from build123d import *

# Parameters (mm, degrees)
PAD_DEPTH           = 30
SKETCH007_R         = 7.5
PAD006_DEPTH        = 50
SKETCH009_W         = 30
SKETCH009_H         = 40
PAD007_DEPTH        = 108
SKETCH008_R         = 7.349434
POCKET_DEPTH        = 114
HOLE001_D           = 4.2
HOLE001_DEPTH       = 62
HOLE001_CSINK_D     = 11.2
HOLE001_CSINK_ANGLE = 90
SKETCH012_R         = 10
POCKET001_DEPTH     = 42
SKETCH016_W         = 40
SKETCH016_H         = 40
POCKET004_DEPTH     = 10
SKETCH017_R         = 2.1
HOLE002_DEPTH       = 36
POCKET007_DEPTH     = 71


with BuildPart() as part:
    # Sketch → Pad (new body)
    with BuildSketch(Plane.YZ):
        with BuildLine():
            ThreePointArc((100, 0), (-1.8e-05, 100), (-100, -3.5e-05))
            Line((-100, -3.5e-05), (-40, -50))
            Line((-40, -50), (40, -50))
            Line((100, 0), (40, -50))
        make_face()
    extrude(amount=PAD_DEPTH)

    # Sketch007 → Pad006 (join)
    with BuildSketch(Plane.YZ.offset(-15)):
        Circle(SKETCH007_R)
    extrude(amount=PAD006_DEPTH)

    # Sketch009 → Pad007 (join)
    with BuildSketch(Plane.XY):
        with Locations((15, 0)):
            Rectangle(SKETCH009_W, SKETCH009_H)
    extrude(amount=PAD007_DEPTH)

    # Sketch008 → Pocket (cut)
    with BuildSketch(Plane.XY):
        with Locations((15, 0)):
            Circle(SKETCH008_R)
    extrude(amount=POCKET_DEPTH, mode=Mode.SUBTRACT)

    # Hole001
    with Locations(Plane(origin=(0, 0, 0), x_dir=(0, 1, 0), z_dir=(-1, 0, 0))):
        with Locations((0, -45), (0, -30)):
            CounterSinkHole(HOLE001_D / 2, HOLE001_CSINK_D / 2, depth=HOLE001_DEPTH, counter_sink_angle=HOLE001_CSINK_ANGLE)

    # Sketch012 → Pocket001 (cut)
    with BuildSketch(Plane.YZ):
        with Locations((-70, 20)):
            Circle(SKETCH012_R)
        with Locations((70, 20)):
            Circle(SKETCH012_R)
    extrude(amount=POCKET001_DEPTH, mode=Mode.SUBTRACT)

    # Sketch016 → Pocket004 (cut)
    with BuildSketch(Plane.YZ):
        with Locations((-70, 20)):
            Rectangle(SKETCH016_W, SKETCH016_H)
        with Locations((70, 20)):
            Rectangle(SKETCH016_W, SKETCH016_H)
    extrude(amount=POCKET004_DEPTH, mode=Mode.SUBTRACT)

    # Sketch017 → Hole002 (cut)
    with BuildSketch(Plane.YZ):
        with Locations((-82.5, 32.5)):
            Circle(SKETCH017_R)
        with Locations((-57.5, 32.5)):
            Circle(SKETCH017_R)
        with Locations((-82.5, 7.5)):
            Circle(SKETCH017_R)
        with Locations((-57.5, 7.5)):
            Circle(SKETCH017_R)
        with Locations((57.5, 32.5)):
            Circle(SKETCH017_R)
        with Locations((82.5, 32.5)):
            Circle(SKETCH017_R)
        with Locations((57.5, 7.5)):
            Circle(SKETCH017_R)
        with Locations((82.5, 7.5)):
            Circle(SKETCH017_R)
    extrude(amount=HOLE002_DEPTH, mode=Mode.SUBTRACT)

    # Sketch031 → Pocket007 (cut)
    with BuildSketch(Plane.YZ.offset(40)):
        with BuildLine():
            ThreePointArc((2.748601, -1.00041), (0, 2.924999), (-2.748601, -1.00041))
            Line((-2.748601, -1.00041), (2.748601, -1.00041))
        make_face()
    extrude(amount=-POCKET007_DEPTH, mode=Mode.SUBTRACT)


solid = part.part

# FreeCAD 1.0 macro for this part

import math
import FreeCAD as App
import Part
import Sketcher

doc = App.newDocument("Part")
body = doc.addObject("PartDesign::Body", "Body")

sketch1 = body.newObject("Sketcher::SketchObject", "Sketch")
sketch1.AttachmentSupport = (doc.getObject("YZ_Plane"), [""])
sketch1.MapMode = "FlatFace"
sketch1.addGeometry(Part.ArcOfCircle(Part.Circle(App.Vector(0, 0, 0), App.Vector(0, 0, 1), 100), math.radians(0), math.radians(180.00002)), False)
sketch1.addGeometry(Part.LineSegment(App.Vector(-100, -0.000035, 0), App.Vector(-40, -50, 0)), False)
sketch1.addGeometry(Part.LineSegment(App.Vector(-40, -50, 0), App.Vector(40, -50, 0)), False)
sketch1.addGeometry(Part.LineSegment(App.Vector(40, -50, 0), App.Vector(100, 0, 0)), False)
sketch1.addConstraint(Sketcher.Constraint("Coincident", 0, 2, 1, 1))
sketch1.addConstraint(Sketcher.Constraint("Coincident", 1, 2, 2, 1))
sketch1.addConstraint(Sketcher.Constraint("Coincident", 2, 2, 3, 1))
sketch1.addConstraint(Sketcher.Constraint("Coincident", 3, 2, 0, 1))
sketch1.addConstraint(Sketcher.Constraint("Horizontal", 2))
sketch1.addConstraint(Sketcher.Constraint("Coincident", 0, 3, -1, 1))
sketch1.addConstraint(Sketcher.Constraint("PointOnObject", 3, 2, -1))
sketch1.addConstraint(Sketcher.Constraint("Radius", 0, 100.0))
sketch1.addConstraint(Sketcher.Constraint("DistanceX", 2, 1, 2, 2, 80.0))
sketch1.addConstraint(Sketcher.Constraint("DistanceX", 1, 2, -1, 1, 40.0))
sketch1.addConstraint(Sketcher.Constraint("DistanceY", 1, 2, -1, 1, 50.0))
sketch1.addConstraint(Sketcher.Constraint("Distance", 1, 78.102474))
pad1 = body.newObject("PartDesign::Pad", "Pad")
pad1.Profile = sketch1
pad1.Length = 30

sketch2 = body.newObject("Sketcher::SketchObject", "Sketch001")
sketch2.AttachmentSupport = (doc.getObject("YZ_Plane"), [""])
sketch2.MapMode = "FlatFace"
sketch2.AttachmentOffset = App.Placement(App.Vector(0, 0, -15), App.Rotation())
sketch2.addGeometry(Part.Circle(App.Vector(0, 0, 0), App.Vector(0, 0, 1), 7.5), False)
sketch2.addConstraint(Sketcher.Constraint("Coincident", 0, 3, -1, 1))
sketch2.addConstraint(Sketcher.Constraint("Diameter", 0, 15.0))
pad2 = body.newObject("PartDesign::Pad", "Pad001")
pad2.Profile = sketch2
pad2.Length = 50

sketch3 = body.newObject("Sketcher::SketchObject", "Sketch002")
sketch3.AttachmentSupport = (doc.getObject("XY_Plane"), [""])
sketch3.MapMode = "FlatFace"
sketch3.addGeometry(Part.LineSegment(App.Vector(0, 20, 0), App.Vector(0, -20, 0)), False)
sketch3.addGeometry(Part.LineSegment(App.Vector(0, -20, 0), App.Vector(30, -20, 0)), False)
sketch3.addGeometry(Part.LineSegment(App.Vector(30, -20, 0), App.Vector(30, 20, 0)), False)
sketch3.addGeometry(Part.LineSegment(App.Vector(30, 20, 0), App.Vector(0, 20, 0)), False)
sketch3.addConstraint(Sketcher.Constraint("Coincident", 0, 2, 1, 1))
sketch3.addConstraint(Sketcher.Constraint("Coincident", 1, 2, 2, 1))
sketch3.addConstraint(Sketcher.Constraint("Coincident", 2, 2, 3, 1))
sketch3.addConstraint(Sketcher.Constraint("Coincident", 3, 2, 0, 1))
sketch3.addConstraint(Sketcher.Constraint("Vertical", 0))
sketch3.addConstraint(Sketcher.Constraint("Horizontal", 1))
sketch3.addConstraint(Sketcher.Constraint("Vertical", 2))
sketch3.addConstraint(Sketcher.Constraint("Horizontal", 3))
sketch3.addConstraint(Sketcher.Constraint("Symmetric", 0, 2, 3, 2, -1, 1))
sketch3.addConstraint(Sketcher.Constraint("DistanceX", 1, 1, 1, 2, 30.0))
sketch3.addConstraint(Sketcher.Constraint("DistanceY", 0, 2, 0, 1, 40.0))
pad3 = body.newObject("PartDesign::Pad", "Pad002")
pad3.Profile = sketch3
pad3.Length = 108

sketch4 = body.newObject("Sketcher::SketchObject", "Sketch003")
sketch4.AttachmentSupport = (doc.getObject("XY_Plane"), [""])
sketch4.MapMode = "FlatFace"
sketch4.addGeometry(Part.Circle(App.Vector(15, 0, 0), App.Vector(0, 0, 1), 7.349434), False)
sketch4.addConstraint(Sketcher.Constraint("PointOnObject", 0, 3, -1))
sketch4.addConstraint(Sketcher.Constraint("DistanceX", -1, 1, 0, 3, 15.0))
sketch4.addConstraint(Sketcher.Constraint("Diameter", 0, 14.698868))
pocket1 = body.newObject("PartDesign::Pocket", "Pocket")
pocket1.Profile = sketch4
pocket1.Length = 114
pocket1.Reversed = True

sketch5 = body.newObject("Sketcher::SketchObject", "Sketch004")
sketch5.AttachmentSupport = (doc.getObject("YZ_Plane"), [""])
sketch5.MapMode = "FlatFace"
sketch5.addGeometry(Part.Circle(App.Vector(0, 45, 0), App.Vector(0, 0, 1), 2.1), False)
sketch5.addGeometry(Part.Circle(App.Vector(0, 30, 0), App.Vector(0, 0, 1), 2.1), False)
sketch5.addConstraint(Sketcher.Constraint("Equal", 0, 1))
sketch5.addConstraint(Sketcher.Constraint("PointOnObject", 0, 3, -2))
sketch5.addConstraint(Sketcher.Constraint("PointOnObject", 1, 3, -2))
sketch5.addConstraint(Sketcher.Constraint("Diameter", 0, 4.2))
sketch5.addConstraint(Sketcher.Constraint("DistanceY", -1, 1, 0, 3, 45.0))
sketch5.addConstraint(Sketcher.Constraint("DistanceY", -1, 1, 1, 3, 30.0))
doc.recompute()
hole = body.newObject("PartDesign::Hole", "Hole")
hole.Profile = sketch5
hole.ThreadType = "None"
hole.Diameter = 4.2
hole.DepthType = "Dimension"
hole.Depth = 62
hole.DrillPoint = "Flat"
hole.HoleCutType = "Countersink"
hole.HoleCutDiameter = 11.2
hole.HoleCutCountersinkAngle = 90
hole.Reversed = True

sketch6 = body.newObject("Sketcher::SketchObject", "Sketch005")
sketch6.AttachmentSupport = (doc.getObject("YZ_Plane"), [""])
sketch6.MapMode = "FlatFace"
sketch6.addGeometry(Part.Circle(App.Vector(-70, 20, 0), App.Vector(0, 0, 1), 10), False)
sketch6.addGeometry(Part.Circle(App.Vector(70, 20, 0), App.Vector(0, 0, 1), 10), False)
sketch6.addConstraint(Sketcher.Constraint("Equal", 0, 1))
sketch6.addConstraint(Sketcher.Constraint("Symmetric", 0, 3, 1, 3, -2))
sketch6.addConstraint(Sketcher.Constraint("Diameter", 0, 20.0))
sketch6.addConstraint(Sketcher.Constraint("DistanceX", 0, 3, -1, 1, 70.0))
sketch6.addConstraint(Sketcher.Constraint("DistanceY", -1, 1, 0, 3, 20.0))
pocket2 = body.newObject("PartDesign::Pocket", "Pocket001")
pocket2.Profile = sketch6
pocket2.Length = 42
pocket2.Reversed = True

sketch7 = body.newObject("Sketcher::SketchObject", "Sketch006")
sketch7.AttachmentSupport = (doc.getObject("YZ_Plane"), [""])
sketch7.MapMode = "FlatFace"
sketch7.addGeometry(Part.LineSegment(App.Vector(-90, 40, 0), App.Vector(-90, 0, 0)), False)
sketch7.addGeometry(Part.LineSegment(App.Vector(-90, 0, 0), App.Vector(-50, 0, 0)), False)
sketch7.addGeometry(Part.LineSegment(App.Vector(-50, 0, 0), App.Vector(-50, 40, 0)), False)
sketch7.addGeometry(Part.LineSegment(App.Vector(-50, 40, 0), App.Vector(-90, 40, 0)), False)
sketch7.addGeometry(Part.LineSegment(App.Vector(50, 40, 0), App.Vector(50, 0, 0)), False)
sketch7.addGeometry(Part.LineSegment(App.Vector(50, 0, 0), App.Vector(90, 0, 0)), False)
sketch7.addGeometry(Part.LineSegment(App.Vector(90, 0, 0), App.Vector(90, 40, 0)), False)
sketch7.addGeometry(Part.LineSegment(App.Vector(90, 40, 0), App.Vector(50, 40, 0)), False)
sketch7.addConstraint(Sketcher.Constraint("Coincident", 0, 2, 1, 1))
sketch7.addConstraint(Sketcher.Constraint("Coincident", 1, 2, 2, 1))
sketch7.addConstraint(Sketcher.Constraint("Coincident", 2, 2, 3, 1))
sketch7.addConstraint(Sketcher.Constraint("Coincident", 3, 2, 0, 1))
sketch7.addConstraint(Sketcher.Constraint("Coincident", 4, 2, 5, 1))
sketch7.addConstraint(Sketcher.Constraint("Coincident", 5, 2, 6, 1))
sketch7.addConstraint(Sketcher.Constraint("Coincident", 6, 2, 7, 1))
sketch7.addConstraint(Sketcher.Constraint("Coincident", 7, 2, 4, 1))
sketch7.addConstraint(Sketcher.Constraint("Vertical", 0))
sketch7.addConstraint(Sketcher.Constraint("Horizontal", 1))
sketch7.addConstraint(Sketcher.Constraint("Vertical", 2))
sketch7.addConstraint(Sketcher.Constraint("Horizontal", 3))
sketch7.addConstraint(Sketcher.Constraint("Vertical", 4))
sketch7.addConstraint(Sketcher.Constraint("Horizontal", 5))
sketch7.addConstraint(Sketcher.Constraint("Vertical", 6))
sketch7.addConstraint(Sketcher.Constraint("Horizontal", 7))
sketch7.addConstraint(Sketcher.Constraint("Symmetric", 1, 2, 4, 2, -1, 1))
sketch7.addConstraint(Sketcher.Constraint("Symmetric", 0, 2, 5, 2, -2))
sketch7.addConstraint(Sketcher.Constraint("Horizontal", 3, 2, 6, 2))
sketch7.addConstraint(Sketcher.Constraint("Equal", 7, 0))
sketch7.addConstraint(Sketcher.Constraint("DistanceX", 1, 1, 1, 2, 40.0))
sketch7.addConstraint(Sketcher.Constraint("DistanceX", 0, 2, -1, 1, 90.0))
pocket3 = body.newObject("PartDesign::Pocket", "Pocket002")
pocket3.Profile = sketch7
pocket3.Length = 10
pocket3.Reversed = True

sketch8 = body.newObject("Sketcher::SketchObject", "Sketch007")
sketch8.AttachmentSupport = (doc.getObject("YZ_Plane"), [""])
sketch8.MapMode = "FlatFace"
sketch8.addGeometry(Part.Circle(App.Vector(-82.5, 32.5, 0), App.Vector(0, 0, 1), 2.1), False)
sketch8.addGeometry(Part.Circle(App.Vector(-57.5, 32.5, 0), App.Vector(0, 0, 1), 2.1), False)
sketch8.addGeometry(Part.Circle(App.Vector(-82.5, 7.5, 0), App.Vector(0, 0, 1), 2.1), False)
sketch8.addGeometry(Part.Circle(App.Vector(-57.5, 7.5, 0), App.Vector(0, 0, 1), 2.1), False)
sketch8.addGeometry(Part.Circle(App.Vector(57.5, 32.5, 0), App.Vector(0, 0, 1), 2.1), False)
sketch8.addGeometry(Part.Circle(App.Vector(82.5, 32.5, 0), App.Vector(0, 0, 1), 2.1), False)
sketch8.addGeometry(Part.Circle(App.Vector(57.5, 7.5, 0), App.Vector(0, 0, 1), 2.1), False)
sketch8.addGeometry(Part.Circle(App.Vector(82.5, 7.5, 0), App.Vector(0, 0, 1), 2.1), False)
sketch8.addConstraint(Sketcher.Constraint("Equal", 0, 1))
sketch8.addConstraint(Sketcher.Constraint("Equal", 1, 2))
sketch8.addConstraint(Sketcher.Constraint("Equal", 2, 3))
sketch8.addConstraint(Sketcher.Constraint("Equal", 3, 4))
sketch8.addConstraint(Sketcher.Constraint("Equal", 4, 5))
sketch8.addConstraint(Sketcher.Constraint("Equal", 5, 6))
sketch8.addConstraint(Sketcher.Constraint("Equal", 6, 7))
sketch8.addConstraint(Sketcher.Constraint("Symmetric", 1, 3, 4, 3, -2))
sketch8.addConstraint(Sketcher.Constraint("Symmetric", 0, 3, 5, 3, -2))
sketch8.addConstraint(Sketcher.Constraint("Symmetric", 3, 3, 6, 3, -2))
sketch8.addConstraint(Sketcher.Constraint("Symmetric", 2, 3, 7, 3, -2))
sketch8.addConstraint(Sketcher.Constraint("Horizontal", 0, 3, 1, 3))
sketch8.addConstraint(Sketcher.Constraint("Horizontal", 2, 3, 3, 3))
sketch8.addConstraint(Sketcher.Constraint("Vertical", 0, 3, 2, 3))
sketch8.addConstraint(Sketcher.Constraint("Vertical", 1, 3, 3, 3))
sketch8.addConstraint(Sketcher.Constraint("Diameter", 0, 4.2))
sketch8.addConstraint(Sketcher.Constraint("DistanceX", 0, 3, 1, 3, 25.0))
sketch8.addConstraint(Sketcher.Constraint("DistanceY", 2, 3, 0, 3, 25.0))
sketch8.addConstraint(Sketcher.Constraint("DistanceX", 1, 3, 4, 3, 115.0))
sketch8.addConstraint(Sketcher.Constraint("DistanceY", -1, 1, 0, 3, 32.5))
pocket4 = body.newObject("PartDesign::Pocket", "Pocket003")
pocket4.Profile = sketch8
pocket4.Length = 36
pocket4.Reversed = True

sketch9 = body.newObject("Sketcher::SketchObject", "Sketch008")
sketch9.AttachmentSupport = (doc.getObject("YZ_Plane"), [""])
sketch9.MapMode = "FlatFace"
sketch9.AttachmentOffset = App.Placement(App.Vector(0, 0, 40), App.Rotation())
sketch9.addGeometry(Part.ArcOfCircle(Part.Circle(App.Vector(0, -0.000001, 0), App.Vector(0, 0, 1), 2.925), math.radians(-19.999999), math.radians(199.999999)), False)
sketch9.addGeometry(Part.LineSegment(App.Vector(-2.748601, -1.00041, 0), App.Vector(2.748601, -1.00041, 0)), False)
sketch9.addConstraint(Sketcher.Constraint("Coincident", 0, 1, 1, 2))
sketch9.addConstraint(Sketcher.Constraint("Coincident", 1, 1, 0, 2))
sketch9.addConstraint(Sketcher.Constraint("Horizontal", 1))
sketch9.addConstraint(Sketcher.Constraint("Coincident", 0, 3, -1, 1))
sketch9.addConstraint(Sketcher.Constraint("Radius", 0, 2.925))
sketch9.addConstraint(Sketcher.Constraint("DistanceX", 1, 1, 1, 2, 5.497202))
pocket5 = body.newObject("PartDesign::Pocket", "Pocket004")
pocket5.Profile = sketch9
pocket5.Length = 71

doc.recompute()
